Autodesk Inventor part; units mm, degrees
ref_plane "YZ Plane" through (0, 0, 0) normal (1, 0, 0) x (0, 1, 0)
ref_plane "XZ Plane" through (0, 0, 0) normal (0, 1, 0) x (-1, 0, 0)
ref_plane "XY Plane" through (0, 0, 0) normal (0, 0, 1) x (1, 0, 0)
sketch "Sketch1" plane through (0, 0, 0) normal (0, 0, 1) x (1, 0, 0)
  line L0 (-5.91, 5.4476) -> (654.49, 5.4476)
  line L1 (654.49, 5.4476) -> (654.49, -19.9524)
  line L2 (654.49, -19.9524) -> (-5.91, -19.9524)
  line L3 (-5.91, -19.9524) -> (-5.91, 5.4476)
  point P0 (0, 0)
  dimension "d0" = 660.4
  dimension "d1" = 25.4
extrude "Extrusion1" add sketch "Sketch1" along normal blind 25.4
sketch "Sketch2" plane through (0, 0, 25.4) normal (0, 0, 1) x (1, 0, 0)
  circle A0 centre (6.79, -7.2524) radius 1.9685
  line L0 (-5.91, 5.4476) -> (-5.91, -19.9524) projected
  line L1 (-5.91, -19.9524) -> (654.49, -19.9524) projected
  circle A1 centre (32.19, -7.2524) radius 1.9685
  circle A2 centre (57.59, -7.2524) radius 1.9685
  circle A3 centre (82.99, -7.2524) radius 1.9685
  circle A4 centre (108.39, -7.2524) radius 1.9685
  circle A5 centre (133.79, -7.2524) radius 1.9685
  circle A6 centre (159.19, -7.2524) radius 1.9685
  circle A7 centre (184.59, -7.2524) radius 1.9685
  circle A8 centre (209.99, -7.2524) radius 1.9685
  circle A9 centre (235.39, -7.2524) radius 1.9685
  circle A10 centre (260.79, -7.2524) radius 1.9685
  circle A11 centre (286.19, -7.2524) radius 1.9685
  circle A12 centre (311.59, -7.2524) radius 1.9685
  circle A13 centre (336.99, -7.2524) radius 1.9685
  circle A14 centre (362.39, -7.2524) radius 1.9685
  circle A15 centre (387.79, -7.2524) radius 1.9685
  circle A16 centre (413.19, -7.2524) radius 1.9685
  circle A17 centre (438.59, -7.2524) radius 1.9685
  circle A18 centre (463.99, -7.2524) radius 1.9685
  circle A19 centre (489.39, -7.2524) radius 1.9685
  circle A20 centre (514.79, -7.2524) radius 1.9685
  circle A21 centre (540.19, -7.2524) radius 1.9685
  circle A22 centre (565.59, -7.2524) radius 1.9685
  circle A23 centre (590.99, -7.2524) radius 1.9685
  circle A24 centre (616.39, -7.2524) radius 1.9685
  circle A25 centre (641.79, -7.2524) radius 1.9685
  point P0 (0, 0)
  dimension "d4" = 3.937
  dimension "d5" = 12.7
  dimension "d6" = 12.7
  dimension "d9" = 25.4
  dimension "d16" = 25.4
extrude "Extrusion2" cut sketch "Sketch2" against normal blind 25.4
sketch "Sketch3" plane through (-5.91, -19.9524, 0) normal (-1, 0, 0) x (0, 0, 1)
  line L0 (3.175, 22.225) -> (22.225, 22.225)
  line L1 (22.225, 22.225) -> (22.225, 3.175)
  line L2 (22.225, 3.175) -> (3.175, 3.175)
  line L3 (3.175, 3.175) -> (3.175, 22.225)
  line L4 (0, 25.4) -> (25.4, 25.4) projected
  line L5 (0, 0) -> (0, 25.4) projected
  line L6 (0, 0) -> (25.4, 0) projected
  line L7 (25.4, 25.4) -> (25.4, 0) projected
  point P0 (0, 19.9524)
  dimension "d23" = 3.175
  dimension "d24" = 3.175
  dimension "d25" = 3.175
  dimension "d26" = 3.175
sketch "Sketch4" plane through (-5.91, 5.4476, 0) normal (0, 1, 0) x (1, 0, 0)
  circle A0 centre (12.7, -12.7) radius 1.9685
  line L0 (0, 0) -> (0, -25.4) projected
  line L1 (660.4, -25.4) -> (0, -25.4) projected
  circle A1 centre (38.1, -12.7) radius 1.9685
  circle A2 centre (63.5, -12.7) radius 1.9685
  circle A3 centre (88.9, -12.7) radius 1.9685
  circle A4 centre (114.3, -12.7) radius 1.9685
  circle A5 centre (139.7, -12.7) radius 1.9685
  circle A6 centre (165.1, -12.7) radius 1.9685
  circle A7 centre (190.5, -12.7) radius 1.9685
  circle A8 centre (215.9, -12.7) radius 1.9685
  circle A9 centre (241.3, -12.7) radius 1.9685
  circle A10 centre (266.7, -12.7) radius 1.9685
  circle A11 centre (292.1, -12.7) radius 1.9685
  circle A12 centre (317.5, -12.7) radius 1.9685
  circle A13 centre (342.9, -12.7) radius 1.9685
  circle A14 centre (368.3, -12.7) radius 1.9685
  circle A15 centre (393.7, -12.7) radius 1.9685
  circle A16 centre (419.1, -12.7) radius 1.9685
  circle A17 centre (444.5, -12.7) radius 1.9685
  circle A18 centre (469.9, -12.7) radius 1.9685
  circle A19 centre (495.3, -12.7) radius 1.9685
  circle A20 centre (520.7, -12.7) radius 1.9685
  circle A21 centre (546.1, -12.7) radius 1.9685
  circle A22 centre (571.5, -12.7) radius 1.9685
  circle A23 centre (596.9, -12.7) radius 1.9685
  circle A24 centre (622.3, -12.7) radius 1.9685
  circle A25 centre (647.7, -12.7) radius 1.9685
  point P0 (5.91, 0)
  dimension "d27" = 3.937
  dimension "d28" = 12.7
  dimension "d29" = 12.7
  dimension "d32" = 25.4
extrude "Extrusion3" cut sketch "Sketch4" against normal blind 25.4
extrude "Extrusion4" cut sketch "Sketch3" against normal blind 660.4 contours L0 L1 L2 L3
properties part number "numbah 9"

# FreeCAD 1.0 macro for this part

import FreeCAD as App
import Part
import Sketcher
Q = App.Units.Quantity


def add_polygon(sketch, points):
    """Adds a closed chain of lines whose ends are joined by coincident constraints."""
    first, n = sketch.GeometryCount, len(points)
    for a, b in zip(points, points[1:] + points[:1]):
        sketch.addGeometry(Part.LineSegment(App.Vector(*a, 0), App.Vector(*b, 0)), False)
    for i in range(n):
        sketch.addConstraint(Sketcher.Constraint("Coincident", first + i, 2, first + (i + 1) % n, 1))

doc = App.newDocument("Part")
body = doc.addObject("PartDesign::Body", "Body")

# Sketch on XY plane
sketch1 = body.newObject("Sketcher::SketchObject", "Sketch")
sketch1.AttachmentSupport = (doc.getObject("XY_Plane"), [""])
sketch1.MapMode = "FlatFace"
add_polygon(sketch1, [(654, 5), (-6, 5), (-6, -20), (654, -20)])  # lines 0-3
sketch1.addConstraint([
    Sketcher.Constraint("Horizontal", 0),
    Sketcher.Constraint("Vertical", 1),
    Sketcher.Constraint("Horizontal", 2),
    Sketcher.Constraint("Vertical", 3),
    Sketcher.Constraint("DistanceX", 0, 2, 0, 1, Q("26 in")),
    Sketcher.Constraint("DistanceY", 1, 2, 1, 1, Q("1 in")),
    Sketcher.Constraint("DistanceX", 0, 2, -1, 1, 5.91),
    Sketcher.Constraint("DistanceY", -1, 1, 0, 2, 5.4476),
])
pad1 = body.newObject("PartDesign::Pad", "Pad")
pad1.Profile = sketch1
pad1.Length = Q("1 in")

# Sketch on XY plane
sketch2 = body.newObject("Sketcher::SketchObject", "Sketch001")
sketch2.AttachmentSupport = (doc.getObject("XY_Plane"), [""])
sketch2.MapMode = "FlatFace"
sketch2.AttachmentOffset = App.Placement(App.Vector(0, 0, 1 * 25.4), App.Rotation())
sketch2.addGeometry([
    Part.Circle(App.Vector(6.8, -7.3, 0), App.Vector(0, 0, 1), 2),  # 0
    Part.Circle(App.Vector(32.2, -7.3, 0), App.Vector(0, 0, 1), 2),  # 1
    Part.Circle(App.Vector(57.6, -7.3, 0), App.Vector(0, 0, 1), 2),  # 2
    Part.Circle(App.Vector(83, -7.3, 0), App.Vector(0, 0, 1), 2),  # 3
    Part.Circle(App.Vector(108.4, -7.3, 0), App.Vector(0, 0, 1), 2),  # 4
    Part.Circle(App.Vector(133.8, -7.3, 0), App.Vector(0, 0, 1), 2),  # 5
    Part.Circle(App.Vector(159.2, -7.3, 0), App.Vector(0, 0, 1), 2),  # 6
    Part.Circle(App.Vector(184.6, -7.3, 0), App.Vector(0, 0, 1), 2),  # 7
    Part.Circle(App.Vector(210, -7.3, 0), App.Vector(0, 0, 1), 2),  # 8
    Part.Circle(App.Vector(235.4, -7.3, 0), App.Vector(0, 0, 1), 2),  # 9
    Part.Circle(App.Vector(260.8, -7.3, 0), App.Vector(0, 0, 1), 2),  # 10
    Part.Circle(App.Vector(286.2, -7.3, 0), App.Vector(0, 0, 1), 2),  # 11
    Part.Circle(App.Vector(311.6, -7.3, 0), App.Vector(0, 0, 1), 2),  # 12
    Part.Circle(App.Vector(337, -7.3, 0), App.Vector(0, 0, 1), 2),  # 13
    Part.Circle(App.Vector(362.4, -7.3, 0), App.Vector(0, 0, 1), 2),  # 14
    Part.Circle(App.Vector(387.8, -7.3, 0), App.Vector(0, 0, 1), 2),  # 15
    Part.Circle(App.Vector(413.2, -7.3, 0), App.Vector(0, 0, 1), 2),  # 16
    Part.Circle(App.Vector(438.6, -7.3, 0), App.Vector(0, 0, 1), 2),  # 17
    Part.Circle(App.Vector(464, -7.3, 0), App.Vector(0, 0, 1), 2),  # 18
    Part.Circle(App.Vector(489.4, -7.3, 0), App.Vector(0, 0, 1), 2),  # 19
    Part.Circle(App.Vector(514.8, -7.3, 0), App.Vector(0, 0, 1), 2),  # 20
    Part.Circle(App.Vector(540.2, -7.3, 0), App.Vector(0, 0, 1), 2),  # 21
    Part.Circle(App.Vector(565.6, -7.3, 0), App.Vector(0, 0, 1), 2),  # 22
    Part.Circle(App.Vector(591, -7.3, 0), App.Vector(0, 0, 1), 2),  # 23
    Part.Circle(App.Vector(616.4, -7.3, 0), App.Vector(0, 0, 1), 2),  # 24
    Part.Circle(App.Vector(641.8, -7.3, 0), App.Vector(0, 0, 1), 2),  # 25
], False)
sketch2.addConstraint([
    Sketcher.Constraint("Equal", 0, 1),
    Sketcher.Constraint("Equal", 1, 2),
    Sketcher.Constraint("Equal", 2, 3),
    Sketcher.Constraint("Equal", 3, 4),
    Sketcher.Constraint("Equal", 4, 5),
    Sketcher.Constraint("Equal", 5, 6),
    Sketcher.Constraint("Equal", 6, 7),
    Sketcher.Constraint("Equal", 7, 8),
    Sketcher.Constraint("Equal", 8, 9),
    Sketcher.Constraint("Equal", 9, 10),
    Sketcher.Constraint("Equal", 10, 11),
    Sketcher.Constraint("Equal", 11, 12),
    Sketcher.Constraint("Equal", 12, 13),
    Sketcher.Constraint("Equal", 13, 14),
    Sketcher.Constraint("Equal", 14, 15),
    Sketcher.Constraint("Equal", 15, 16),
    Sketcher.Constraint("Equal", 16, 17),
    Sketcher.Constraint("Equal", 17, 18),
    Sketcher.Constraint("Equal", 18, 19),
    Sketcher.Constraint("Equal", 19, 20),
    Sketcher.Constraint("Equal", 20, 21),
    Sketcher.Constraint("Equal", 21, 22),
    Sketcher.Constraint("Equal", 22, 23),
    Sketcher.Constraint("Equal", 23, 24),
    Sketcher.Constraint("Equal", 24, 25),
    Sketcher.Constraint("Horizontal", 0, 3, 1, 3),
    Sketcher.Constraint("Horizontal", 1, 3, 2, 3),
    Sketcher.Constraint("Horizontal", 2, 3, 3, 3),
    Sketcher.Constraint("Horizontal", 3, 3, 4, 3),
    Sketcher.Constraint("Horizontal", 4, 3, 5, 3),
    Sketcher.Constraint("Horizontal", 5, 3, 6, 3),
    Sketcher.Constraint("Horizontal", 6, 3, 7, 3),
    Sketcher.Constraint("Horizontal", 7, 3, 8, 3),
    Sketcher.Constraint("Horizontal", 8, 3, 9, 3),
    Sketcher.Constraint("Horizontal", 9, 3, 10, 3),
    Sketcher.Constraint("Horizontal", 10, 3, 11, 3),
    Sketcher.Constraint("Horizontal", 11, 3, 12, 3),
    Sketcher.Constraint("Horizontal", 12, 3, 13, 3),
    Sketcher.Constraint("Horizontal", 13, 3, 14, 3),
    Sketcher.Constraint("Horizontal", 14, 3, 15, 3),
    Sketcher.Constraint("Horizontal", 15, 3, 16, 3),
    Sketcher.Constraint("Horizontal", 16, 3, 17, 3),
    Sketcher.Constraint("Horizontal", 17, 3, 18, 3),
    Sketcher.Constraint("Horizontal", 18, 3, 19, 3),
    Sketcher.Constraint("Horizontal", 19, 3, 20, 3),
    Sketcher.Constraint("Horizontal", 20, 3, 21, 3),
    Sketcher.Constraint("Horizontal", 21, 3, 22, 3),
    Sketcher.Constraint("Horizontal", 22, 3, 23, 3),
    Sketcher.Constraint("Horizontal", 23, 3, 24, 3),
    Sketcher.Constraint("Horizontal", 24, 3, 25, 3),
    Sketcher.Constraint("Diameter", 0, Q("0.155 in")),
    Sketcher.Constraint("DistanceX", 0, 3, 1, 3, Q("1 in")),
    Sketcher.Constraint("DistanceX", 1, 3, 2, 3, Q("1 in")),
    Sketcher.Constraint("DistanceX", 2, 3, 3, 3, Q("1 in")),
    Sketcher.Constraint("DistanceX", 3, 3, 4, 3, Q("1 in")),
    Sketcher.Constraint("DistanceX", 4, 3, 5, 3, Q("1 in")),
    Sketcher.Constraint("DistanceX", 5, 3, 6, 3, Q("1 in")),
    Sketcher.Constraint("DistanceX", 6, 3, 7, 3, Q("1 in")),
    Sketcher.Constraint("DistanceX", 7, 3, 8, 3, Q("1 in")),
    Sketcher.Constraint("DistanceX", 8, 3, 9, 3, Q("1 in")),
    Sketcher.Constraint("DistanceX", 9, 3, 10, 3, Q("1 in")),
    Sketcher.Constraint("DistanceX", 10, 3, 11, 3, Q("1 in")),
    Sketcher.Constraint("DistanceX", 11, 3, 12, 3, Q("1 in")),
    Sketcher.Constraint("DistanceX", 12, 3, 13, 3, Q("1 in")),
    Sketcher.Constraint("DistanceX", 13, 3, 14, 3, Q("1 in")),
    Sketcher.Constraint("DistanceX", 14, 3, 15, 3, Q("1 in")),
    Sketcher.Constraint("DistanceX", 15, 3, 16, 3, Q("1 in")),
    Sketcher.Constraint("DistanceX", 16, 3, 17, 3, Q("1 in")),
    Sketcher.Constraint("DistanceX", 17, 3, 18, 3, Q("1 in")),
    Sketcher.Constraint("DistanceX", 18, 3, 19, 3, Q("1 in")),
    Sketcher.Constraint("DistanceX", 19, 3, 20, 3, Q("1 in")),
    Sketcher.Constraint("DistanceX", 20, 3, 21, 3, Q("1 in")),
    Sketcher.Constraint("DistanceX", 21, 3, 22, 3, Q("1 in")),
    Sketcher.Constraint("DistanceX", 22, 3, 23, 3, Q("1 in")),
    Sketcher.Constraint("DistanceX", 23, 3, 24, 3, Q("1 in")),
    Sketcher.Constraint("DistanceX", 24, 3, 25, 3, Q("1 in")),
    Sketcher.Constraint("DistanceX", -1, 1, 0, 3, 6.79),
    Sketcher.Constraint("DistanceY", 0, 3, -1, 1, 7.2524),
])
pocket1 = body.newObject("PartDesign::Pocket", "Pocket")
pocket1.Profile = sketch2
pocket1.Length = Q("1 in")

# Sketch on XZ plane
sketch3 = body.newObject("Sketcher::SketchObject", "Sketch002")
sketch3.AttachmentSupport = (doc.getObject("XZ_Plane"), [""])
sketch3.MapMode = "FlatFace"
sketch3.AttachmentOffset = App.Placement(App.Vector(0, 0, -5.4476), App.Rotation())
sketch3.addGeometry([
    Part.Circle(App.Vector(6.8, 12.7, 0), App.Vector(0, 0, 1), 2),  # 0
    Part.Circle(App.Vector(32.2, 12.7, 0), App.Vector(0, 0, 1), 2),  # 1
    Part.Circle(App.Vector(57.6, 12.7, 0), App.Vector(0, 0, 1), 2),  # 2
    Part.Circle(App.Vector(83, 12.7, 0), App.Vector(0, 0, 1), 2),  # 3
    Part.Circle(App.Vector(108.4, 12.7, 0), App.Vector(0, 0, 1), 2),  # 4
    Part.Circle(App.Vector(133.8, 12.7, 0), App.Vector(0, 0, 1), 2),  # 5
    Part.Circle(App.Vector(159.2, 12.7, 0), App.Vector(0, 0, 1), 2),  # 6
    Part.Circle(App.Vector(184.6, 12.7, 0), App.Vector(0, 0, 1), 2),  # 7
    Part.Circle(App.Vector(210, 12.7, 0), App.Vector(0, 0, 1), 2),  # 8
    Part.Circle(App.Vector(235.4, 12.7, 0), App.Vector(0, 0, 1), 2),  # 9
    Part.Circle(App.Vector(260.8, 12.7, 0), App.Vector(0, 0, 1), 2),  # 10
    Part.Circle(App.Vector(286.2, 12.7, 0), App.Vector(0, 0, 1), 2),  # 11
    Part.Circle(App.Vector(311.6, 12.7, 0), App.Vector(0, 0, 1), 2),  # 12
    Part.Circle(App.Vector(337, 12.7, 0), App.Vector(0, 0, 1), 2),  # 13
    Part.Circle(App.Vector(362.4, 12.7, 0), App.Vector(0, 0, 1), 2),  # 14
    Part.Circle(App.Vector(387.8, 12.7, 0), App.Vector(0, 0, 1), 2),  # 15
    Part.Circle(App.Vector(413.2, 12.7, 0), App.Vector(0, 0, 1), 2),  # 16
    Part.Circle(App.Vector(438.6, 12.7, 0), App.Vector(0, 0, 1), 2),  # 17
    Part.Circle(App.Vector(464, 12.7, 0), App.Vector(0, 0, 1), 2),  # 18
    Part.Circle(App.Vector(489.4, 12.7, 0), App.Vector(0, 0, 1), 2),  # 19
    Part.Circle(App.Vector(514.8, 12.7, 0), App.Vector(0, 0, 1), 2),  # 20
    Part.Circle(App.Vector(540.2, 12.7, 0), App.Vector(0, 0, 1), 2),  # 21
    Part.Circle(App.Vector(565.6, 12.7, 0), App.Vector(0, 0, 1), 2),  # 22
    Part.Circle(App.Vector(591, 12.7, 0), App.Vector(0, 0, 1), 2),  # 23
    Part.Circle(App.Vector(616.4, 12.7, 0), App.Vector(0, 0, 1), 2),  # 24
    Part.Circle(App.Vector(641.8, 12.7, 0), App.Vector(0, 0, 1), 2),  # 25
], False)
sketch3.addConstraint([
    Sketcher.Constraint("Equal", 0, 1),
    Sketcher.Constraint("Equal", 1, 2),
    Sketcher.Constraint("Equal", 2, 3),
    Sketcher.Constraint("Equal", 3, 4),
    Sketcher.Constraint("Equal", 4, 5),
    Sketcher.Constraint("Equal", 5, 6),
    Sketcher.Constraint("Equal", 6, 7),
    Sketcher.Constraint("Equal", 7, 8),
    Sketcher.Constraint("Equal", 8, 9),
    Sketcher.Constraint("Equal", 9, 10),
    Sketcher.Constraint("Equal", 10, 11),
    Sketcher.Constraint("Equal", 11, 12),
    Sketcher.Constraint("Equal", 12, 13),
    Sketcher.Constraint("Equal", 13, 14),
    Sketcher.Constraint("Equal", 14, 15),
    Sketcher.Constraint("Equal", 15, 16),
    Sketcher.Constraint("Equal", 16, 17),
    Sketcher.Constraint("Equal", 17, 18),
    Sketcher.Constraint("Equal", 18, 19),
    Sketcher.Constraint("Equal", 19, 20),
    Sketcher.Constraint("Equal", 20, 21),
    Sketcher.Constraint("Equal", 21, 22),
    Sketcher.Constraint("Equal", 22, 23),
    Sketcher.Constraint("Equal", 23, 24),
    Sketcher.Constraint("Equal", 24, 25),
    Sketcher.Constraint("Horizontal", 0, 3, 1, 3),
    Sketcher.Constraint("Horizontal", 1, 3, 2, 3),
    Sketcher.Constraint("Horizontal", 2, 3, 3, 3),
    Sketcher.Constraint("Horizontal", 3, 3, 4, 3),
    Sketcher.Constraint("Horizontal", 4, 3, 5, 3),
    Sketcher.Constraint("Horizontal", 5, 3, 6, 3),
    Sketcher.Constraint("Horizontal", 6, 3, 7, 3),
    Sketcher.Constraint("Horizontal", 7, 3, 8, 3),
    Sketcher.Constraint("Horizontal", 8, 3, 9, 3),
    Sketcher.Constraint("Horizontal", 9, 3, 10, 3),
    Sketcher.Constraint("Horizontal", 10, 3, 11, 3),
    Sketcher.Constraint("Horizontal", 11, 3, 12, 3),
    Sketcher.Constraint("Horizontal", 12, 3, 13, 3),
    Sketcher.Constraint("Horizontal", 13, 3, 14, 3),
    Sketcher.Constraint("Horizontal", 14, 3, 15, 3),
    Sketcher.Constraint("Horizontal", 15, 3, 16, 3),
    Sketcher.Constraint("Horizontal", 16, 3, 17, 3),
    Sketcher.Constraint("Horizontal", 17, 3, 18, 3),
    Sketcher.Constraint("Horizontal", 18, 3, 19, 3),
    Sketcher.Constraint("Horizontal", 19, 3, 20, 3),
    Sketcher.Constraint("Horizontal", 20, 3, 21, 3),
    Sketcher.Constraint("Horizontal", 21, 3, 22, 3),
    Sketcher.Constraint("Horizontal", 22, 3, 23, 3),
    Sketcher.Constraint("Horizontal", 23, 3, 24, 3),
    Sketcher.Constraint("Horizontal", 24, 3, 25, 3),
    Sketcher.Constraint("Diameter", 0, Q("0.155 in")),
    Sketcher.Constraint("DistanceX", 0, 3, 1, 3, Q("1 in")),
    Sketcher.Constraint("DistanceX", 1, 3, 2, 3, Q("1 in")),
    Sketcher.Constraint("DistanceX", 2, 3, 3, 3, Q("1 in")),
    Sketcher.Constraint("DistanceX", 3, 3, 4, 3, Q("1 in")),
    Sketcher.Constraint("DistanceX", 4, 3, 5, 3, Q("1 in")),
    Sketcher.Constraint("DistanceX", 5, 3, 6, 3, Q("1 in")),
    Sketcher.Constraint("DistanceX", 6, 3, 7, 3, Q("1 in")),
    Sketcher.Constraint("DistanceX", 7, 3, 8, 3, Q("1 in")),
    Sketcher.Constraint("DistanceX", 8, 3, 9, 3, Q("1 in")),
    Sketcher.Constraint("DistanceX", 9, 3, 10, 3, Q("1 in")),
    Sketcher.Constraint("DistanceX", 10, 3, 11, 3, Q("1 in")),
    Sketcher.Constraint("DistanceX", 11, 3, 12, 3, Q("1 in")),
    Sketcher.Constraint("DistanceX", 12, 3, 13, 3, Q("1 in")),
    Sketcher.Constraint("DistanceX", 13, 3, 14, 3, Q("1 in")),
    Sketcher.Constraint("DistanceX", 14, 3, 15, 3, Q("1 in")),
    Sketcher.Constraint("DistanceX", 15, 3, 16, 3, Q("1 in")),
    Sketcher.Constraint("DistanceX", 16, 3, 17, 3, Q("1 in")),
    Sketcher.Constraint("DistanceX", 17, 3, 18, 3, Q("1 in")),
    Sketcher.Constraint("DistanceX", 18, 3, 19, 3, Q("1 in")),
    Sketcher.Constraint("DistanceX", 19, 3, 20, 3, Q("1 in")),
    Sketcher.Constraint("DistanceX", 20, 3, 21, 3, Q("1 in")),
    Sketcher.Constraint("DistanceX", 21, 3, 22, 3, Q("1 in")),
    Sketcher.Constraint("DistanceX", 22, 3, 23, 3, Q("1 in")),
    Sketcher.Constraint("DistanceX", 23, 3, 24, 3, Q("1 in")),
    Sketcher.Constraint("DistanceX", 24, 3, 25, 3, Q("1 in")),
    Sketcher.Constraint("DistanceY", -1, 1, 0, 3, Q("0.5 in")),
    Sketcher.Constraint("DistanceX", -1, 1, 0, 3, 6.79),
])
pocket2 = body.newObject("PartDesign::Pocket", "Pocket001")
pocket2.Profile = sketch3
pocket2.Length = Q("1 in")
pocket2.Reversed = True

# Sketch on YZ plane
sketch4 = body.newObject("Sketcher::SketchObject", "Sketch003")
sketch4.AttachmentSupport = (doc.getObject("YZ_Plane"), [""])
sketch4.MapMode = "FlatFace"
sketch4.AttachmentOffset = App.Placement(App.Vector(0, 0, -5.91), App.Rotation())
add_polygon(sketch4, [(2, 22), (2, 3), (-17, 3), (-17, 22)])  # lines 0-3
sketch4.addConstraint([
    Sketcher.Constraint("Vertical", 0),
    Sketcher.Constraint("Horizontal", 1),
    Sketcher.Constraint("Vertical", 2),
    Sketcher.Constraint("Horizontal", 3),
    Sketcher.Constraint("Equal", 3, 0),
    Sketcher.Constraint("DistanceY", -1, 1, 0, 2, Q("0.125 in")),
    Sketcher.Constraint("DistanceX", 1, 2, 1, 1, Q("0.75 in")),
    Sketcher.Constraint("DistanceX", -1, 1, 0, 2, 2.2726),
])
pocket3 = body.newObject("PartDesign::Pocket", "Pocket002")
pocket3.Profile = sketch4
pocket3.Length = Q("26 in")
pocket3.Reversed = True

doc.recompute()
